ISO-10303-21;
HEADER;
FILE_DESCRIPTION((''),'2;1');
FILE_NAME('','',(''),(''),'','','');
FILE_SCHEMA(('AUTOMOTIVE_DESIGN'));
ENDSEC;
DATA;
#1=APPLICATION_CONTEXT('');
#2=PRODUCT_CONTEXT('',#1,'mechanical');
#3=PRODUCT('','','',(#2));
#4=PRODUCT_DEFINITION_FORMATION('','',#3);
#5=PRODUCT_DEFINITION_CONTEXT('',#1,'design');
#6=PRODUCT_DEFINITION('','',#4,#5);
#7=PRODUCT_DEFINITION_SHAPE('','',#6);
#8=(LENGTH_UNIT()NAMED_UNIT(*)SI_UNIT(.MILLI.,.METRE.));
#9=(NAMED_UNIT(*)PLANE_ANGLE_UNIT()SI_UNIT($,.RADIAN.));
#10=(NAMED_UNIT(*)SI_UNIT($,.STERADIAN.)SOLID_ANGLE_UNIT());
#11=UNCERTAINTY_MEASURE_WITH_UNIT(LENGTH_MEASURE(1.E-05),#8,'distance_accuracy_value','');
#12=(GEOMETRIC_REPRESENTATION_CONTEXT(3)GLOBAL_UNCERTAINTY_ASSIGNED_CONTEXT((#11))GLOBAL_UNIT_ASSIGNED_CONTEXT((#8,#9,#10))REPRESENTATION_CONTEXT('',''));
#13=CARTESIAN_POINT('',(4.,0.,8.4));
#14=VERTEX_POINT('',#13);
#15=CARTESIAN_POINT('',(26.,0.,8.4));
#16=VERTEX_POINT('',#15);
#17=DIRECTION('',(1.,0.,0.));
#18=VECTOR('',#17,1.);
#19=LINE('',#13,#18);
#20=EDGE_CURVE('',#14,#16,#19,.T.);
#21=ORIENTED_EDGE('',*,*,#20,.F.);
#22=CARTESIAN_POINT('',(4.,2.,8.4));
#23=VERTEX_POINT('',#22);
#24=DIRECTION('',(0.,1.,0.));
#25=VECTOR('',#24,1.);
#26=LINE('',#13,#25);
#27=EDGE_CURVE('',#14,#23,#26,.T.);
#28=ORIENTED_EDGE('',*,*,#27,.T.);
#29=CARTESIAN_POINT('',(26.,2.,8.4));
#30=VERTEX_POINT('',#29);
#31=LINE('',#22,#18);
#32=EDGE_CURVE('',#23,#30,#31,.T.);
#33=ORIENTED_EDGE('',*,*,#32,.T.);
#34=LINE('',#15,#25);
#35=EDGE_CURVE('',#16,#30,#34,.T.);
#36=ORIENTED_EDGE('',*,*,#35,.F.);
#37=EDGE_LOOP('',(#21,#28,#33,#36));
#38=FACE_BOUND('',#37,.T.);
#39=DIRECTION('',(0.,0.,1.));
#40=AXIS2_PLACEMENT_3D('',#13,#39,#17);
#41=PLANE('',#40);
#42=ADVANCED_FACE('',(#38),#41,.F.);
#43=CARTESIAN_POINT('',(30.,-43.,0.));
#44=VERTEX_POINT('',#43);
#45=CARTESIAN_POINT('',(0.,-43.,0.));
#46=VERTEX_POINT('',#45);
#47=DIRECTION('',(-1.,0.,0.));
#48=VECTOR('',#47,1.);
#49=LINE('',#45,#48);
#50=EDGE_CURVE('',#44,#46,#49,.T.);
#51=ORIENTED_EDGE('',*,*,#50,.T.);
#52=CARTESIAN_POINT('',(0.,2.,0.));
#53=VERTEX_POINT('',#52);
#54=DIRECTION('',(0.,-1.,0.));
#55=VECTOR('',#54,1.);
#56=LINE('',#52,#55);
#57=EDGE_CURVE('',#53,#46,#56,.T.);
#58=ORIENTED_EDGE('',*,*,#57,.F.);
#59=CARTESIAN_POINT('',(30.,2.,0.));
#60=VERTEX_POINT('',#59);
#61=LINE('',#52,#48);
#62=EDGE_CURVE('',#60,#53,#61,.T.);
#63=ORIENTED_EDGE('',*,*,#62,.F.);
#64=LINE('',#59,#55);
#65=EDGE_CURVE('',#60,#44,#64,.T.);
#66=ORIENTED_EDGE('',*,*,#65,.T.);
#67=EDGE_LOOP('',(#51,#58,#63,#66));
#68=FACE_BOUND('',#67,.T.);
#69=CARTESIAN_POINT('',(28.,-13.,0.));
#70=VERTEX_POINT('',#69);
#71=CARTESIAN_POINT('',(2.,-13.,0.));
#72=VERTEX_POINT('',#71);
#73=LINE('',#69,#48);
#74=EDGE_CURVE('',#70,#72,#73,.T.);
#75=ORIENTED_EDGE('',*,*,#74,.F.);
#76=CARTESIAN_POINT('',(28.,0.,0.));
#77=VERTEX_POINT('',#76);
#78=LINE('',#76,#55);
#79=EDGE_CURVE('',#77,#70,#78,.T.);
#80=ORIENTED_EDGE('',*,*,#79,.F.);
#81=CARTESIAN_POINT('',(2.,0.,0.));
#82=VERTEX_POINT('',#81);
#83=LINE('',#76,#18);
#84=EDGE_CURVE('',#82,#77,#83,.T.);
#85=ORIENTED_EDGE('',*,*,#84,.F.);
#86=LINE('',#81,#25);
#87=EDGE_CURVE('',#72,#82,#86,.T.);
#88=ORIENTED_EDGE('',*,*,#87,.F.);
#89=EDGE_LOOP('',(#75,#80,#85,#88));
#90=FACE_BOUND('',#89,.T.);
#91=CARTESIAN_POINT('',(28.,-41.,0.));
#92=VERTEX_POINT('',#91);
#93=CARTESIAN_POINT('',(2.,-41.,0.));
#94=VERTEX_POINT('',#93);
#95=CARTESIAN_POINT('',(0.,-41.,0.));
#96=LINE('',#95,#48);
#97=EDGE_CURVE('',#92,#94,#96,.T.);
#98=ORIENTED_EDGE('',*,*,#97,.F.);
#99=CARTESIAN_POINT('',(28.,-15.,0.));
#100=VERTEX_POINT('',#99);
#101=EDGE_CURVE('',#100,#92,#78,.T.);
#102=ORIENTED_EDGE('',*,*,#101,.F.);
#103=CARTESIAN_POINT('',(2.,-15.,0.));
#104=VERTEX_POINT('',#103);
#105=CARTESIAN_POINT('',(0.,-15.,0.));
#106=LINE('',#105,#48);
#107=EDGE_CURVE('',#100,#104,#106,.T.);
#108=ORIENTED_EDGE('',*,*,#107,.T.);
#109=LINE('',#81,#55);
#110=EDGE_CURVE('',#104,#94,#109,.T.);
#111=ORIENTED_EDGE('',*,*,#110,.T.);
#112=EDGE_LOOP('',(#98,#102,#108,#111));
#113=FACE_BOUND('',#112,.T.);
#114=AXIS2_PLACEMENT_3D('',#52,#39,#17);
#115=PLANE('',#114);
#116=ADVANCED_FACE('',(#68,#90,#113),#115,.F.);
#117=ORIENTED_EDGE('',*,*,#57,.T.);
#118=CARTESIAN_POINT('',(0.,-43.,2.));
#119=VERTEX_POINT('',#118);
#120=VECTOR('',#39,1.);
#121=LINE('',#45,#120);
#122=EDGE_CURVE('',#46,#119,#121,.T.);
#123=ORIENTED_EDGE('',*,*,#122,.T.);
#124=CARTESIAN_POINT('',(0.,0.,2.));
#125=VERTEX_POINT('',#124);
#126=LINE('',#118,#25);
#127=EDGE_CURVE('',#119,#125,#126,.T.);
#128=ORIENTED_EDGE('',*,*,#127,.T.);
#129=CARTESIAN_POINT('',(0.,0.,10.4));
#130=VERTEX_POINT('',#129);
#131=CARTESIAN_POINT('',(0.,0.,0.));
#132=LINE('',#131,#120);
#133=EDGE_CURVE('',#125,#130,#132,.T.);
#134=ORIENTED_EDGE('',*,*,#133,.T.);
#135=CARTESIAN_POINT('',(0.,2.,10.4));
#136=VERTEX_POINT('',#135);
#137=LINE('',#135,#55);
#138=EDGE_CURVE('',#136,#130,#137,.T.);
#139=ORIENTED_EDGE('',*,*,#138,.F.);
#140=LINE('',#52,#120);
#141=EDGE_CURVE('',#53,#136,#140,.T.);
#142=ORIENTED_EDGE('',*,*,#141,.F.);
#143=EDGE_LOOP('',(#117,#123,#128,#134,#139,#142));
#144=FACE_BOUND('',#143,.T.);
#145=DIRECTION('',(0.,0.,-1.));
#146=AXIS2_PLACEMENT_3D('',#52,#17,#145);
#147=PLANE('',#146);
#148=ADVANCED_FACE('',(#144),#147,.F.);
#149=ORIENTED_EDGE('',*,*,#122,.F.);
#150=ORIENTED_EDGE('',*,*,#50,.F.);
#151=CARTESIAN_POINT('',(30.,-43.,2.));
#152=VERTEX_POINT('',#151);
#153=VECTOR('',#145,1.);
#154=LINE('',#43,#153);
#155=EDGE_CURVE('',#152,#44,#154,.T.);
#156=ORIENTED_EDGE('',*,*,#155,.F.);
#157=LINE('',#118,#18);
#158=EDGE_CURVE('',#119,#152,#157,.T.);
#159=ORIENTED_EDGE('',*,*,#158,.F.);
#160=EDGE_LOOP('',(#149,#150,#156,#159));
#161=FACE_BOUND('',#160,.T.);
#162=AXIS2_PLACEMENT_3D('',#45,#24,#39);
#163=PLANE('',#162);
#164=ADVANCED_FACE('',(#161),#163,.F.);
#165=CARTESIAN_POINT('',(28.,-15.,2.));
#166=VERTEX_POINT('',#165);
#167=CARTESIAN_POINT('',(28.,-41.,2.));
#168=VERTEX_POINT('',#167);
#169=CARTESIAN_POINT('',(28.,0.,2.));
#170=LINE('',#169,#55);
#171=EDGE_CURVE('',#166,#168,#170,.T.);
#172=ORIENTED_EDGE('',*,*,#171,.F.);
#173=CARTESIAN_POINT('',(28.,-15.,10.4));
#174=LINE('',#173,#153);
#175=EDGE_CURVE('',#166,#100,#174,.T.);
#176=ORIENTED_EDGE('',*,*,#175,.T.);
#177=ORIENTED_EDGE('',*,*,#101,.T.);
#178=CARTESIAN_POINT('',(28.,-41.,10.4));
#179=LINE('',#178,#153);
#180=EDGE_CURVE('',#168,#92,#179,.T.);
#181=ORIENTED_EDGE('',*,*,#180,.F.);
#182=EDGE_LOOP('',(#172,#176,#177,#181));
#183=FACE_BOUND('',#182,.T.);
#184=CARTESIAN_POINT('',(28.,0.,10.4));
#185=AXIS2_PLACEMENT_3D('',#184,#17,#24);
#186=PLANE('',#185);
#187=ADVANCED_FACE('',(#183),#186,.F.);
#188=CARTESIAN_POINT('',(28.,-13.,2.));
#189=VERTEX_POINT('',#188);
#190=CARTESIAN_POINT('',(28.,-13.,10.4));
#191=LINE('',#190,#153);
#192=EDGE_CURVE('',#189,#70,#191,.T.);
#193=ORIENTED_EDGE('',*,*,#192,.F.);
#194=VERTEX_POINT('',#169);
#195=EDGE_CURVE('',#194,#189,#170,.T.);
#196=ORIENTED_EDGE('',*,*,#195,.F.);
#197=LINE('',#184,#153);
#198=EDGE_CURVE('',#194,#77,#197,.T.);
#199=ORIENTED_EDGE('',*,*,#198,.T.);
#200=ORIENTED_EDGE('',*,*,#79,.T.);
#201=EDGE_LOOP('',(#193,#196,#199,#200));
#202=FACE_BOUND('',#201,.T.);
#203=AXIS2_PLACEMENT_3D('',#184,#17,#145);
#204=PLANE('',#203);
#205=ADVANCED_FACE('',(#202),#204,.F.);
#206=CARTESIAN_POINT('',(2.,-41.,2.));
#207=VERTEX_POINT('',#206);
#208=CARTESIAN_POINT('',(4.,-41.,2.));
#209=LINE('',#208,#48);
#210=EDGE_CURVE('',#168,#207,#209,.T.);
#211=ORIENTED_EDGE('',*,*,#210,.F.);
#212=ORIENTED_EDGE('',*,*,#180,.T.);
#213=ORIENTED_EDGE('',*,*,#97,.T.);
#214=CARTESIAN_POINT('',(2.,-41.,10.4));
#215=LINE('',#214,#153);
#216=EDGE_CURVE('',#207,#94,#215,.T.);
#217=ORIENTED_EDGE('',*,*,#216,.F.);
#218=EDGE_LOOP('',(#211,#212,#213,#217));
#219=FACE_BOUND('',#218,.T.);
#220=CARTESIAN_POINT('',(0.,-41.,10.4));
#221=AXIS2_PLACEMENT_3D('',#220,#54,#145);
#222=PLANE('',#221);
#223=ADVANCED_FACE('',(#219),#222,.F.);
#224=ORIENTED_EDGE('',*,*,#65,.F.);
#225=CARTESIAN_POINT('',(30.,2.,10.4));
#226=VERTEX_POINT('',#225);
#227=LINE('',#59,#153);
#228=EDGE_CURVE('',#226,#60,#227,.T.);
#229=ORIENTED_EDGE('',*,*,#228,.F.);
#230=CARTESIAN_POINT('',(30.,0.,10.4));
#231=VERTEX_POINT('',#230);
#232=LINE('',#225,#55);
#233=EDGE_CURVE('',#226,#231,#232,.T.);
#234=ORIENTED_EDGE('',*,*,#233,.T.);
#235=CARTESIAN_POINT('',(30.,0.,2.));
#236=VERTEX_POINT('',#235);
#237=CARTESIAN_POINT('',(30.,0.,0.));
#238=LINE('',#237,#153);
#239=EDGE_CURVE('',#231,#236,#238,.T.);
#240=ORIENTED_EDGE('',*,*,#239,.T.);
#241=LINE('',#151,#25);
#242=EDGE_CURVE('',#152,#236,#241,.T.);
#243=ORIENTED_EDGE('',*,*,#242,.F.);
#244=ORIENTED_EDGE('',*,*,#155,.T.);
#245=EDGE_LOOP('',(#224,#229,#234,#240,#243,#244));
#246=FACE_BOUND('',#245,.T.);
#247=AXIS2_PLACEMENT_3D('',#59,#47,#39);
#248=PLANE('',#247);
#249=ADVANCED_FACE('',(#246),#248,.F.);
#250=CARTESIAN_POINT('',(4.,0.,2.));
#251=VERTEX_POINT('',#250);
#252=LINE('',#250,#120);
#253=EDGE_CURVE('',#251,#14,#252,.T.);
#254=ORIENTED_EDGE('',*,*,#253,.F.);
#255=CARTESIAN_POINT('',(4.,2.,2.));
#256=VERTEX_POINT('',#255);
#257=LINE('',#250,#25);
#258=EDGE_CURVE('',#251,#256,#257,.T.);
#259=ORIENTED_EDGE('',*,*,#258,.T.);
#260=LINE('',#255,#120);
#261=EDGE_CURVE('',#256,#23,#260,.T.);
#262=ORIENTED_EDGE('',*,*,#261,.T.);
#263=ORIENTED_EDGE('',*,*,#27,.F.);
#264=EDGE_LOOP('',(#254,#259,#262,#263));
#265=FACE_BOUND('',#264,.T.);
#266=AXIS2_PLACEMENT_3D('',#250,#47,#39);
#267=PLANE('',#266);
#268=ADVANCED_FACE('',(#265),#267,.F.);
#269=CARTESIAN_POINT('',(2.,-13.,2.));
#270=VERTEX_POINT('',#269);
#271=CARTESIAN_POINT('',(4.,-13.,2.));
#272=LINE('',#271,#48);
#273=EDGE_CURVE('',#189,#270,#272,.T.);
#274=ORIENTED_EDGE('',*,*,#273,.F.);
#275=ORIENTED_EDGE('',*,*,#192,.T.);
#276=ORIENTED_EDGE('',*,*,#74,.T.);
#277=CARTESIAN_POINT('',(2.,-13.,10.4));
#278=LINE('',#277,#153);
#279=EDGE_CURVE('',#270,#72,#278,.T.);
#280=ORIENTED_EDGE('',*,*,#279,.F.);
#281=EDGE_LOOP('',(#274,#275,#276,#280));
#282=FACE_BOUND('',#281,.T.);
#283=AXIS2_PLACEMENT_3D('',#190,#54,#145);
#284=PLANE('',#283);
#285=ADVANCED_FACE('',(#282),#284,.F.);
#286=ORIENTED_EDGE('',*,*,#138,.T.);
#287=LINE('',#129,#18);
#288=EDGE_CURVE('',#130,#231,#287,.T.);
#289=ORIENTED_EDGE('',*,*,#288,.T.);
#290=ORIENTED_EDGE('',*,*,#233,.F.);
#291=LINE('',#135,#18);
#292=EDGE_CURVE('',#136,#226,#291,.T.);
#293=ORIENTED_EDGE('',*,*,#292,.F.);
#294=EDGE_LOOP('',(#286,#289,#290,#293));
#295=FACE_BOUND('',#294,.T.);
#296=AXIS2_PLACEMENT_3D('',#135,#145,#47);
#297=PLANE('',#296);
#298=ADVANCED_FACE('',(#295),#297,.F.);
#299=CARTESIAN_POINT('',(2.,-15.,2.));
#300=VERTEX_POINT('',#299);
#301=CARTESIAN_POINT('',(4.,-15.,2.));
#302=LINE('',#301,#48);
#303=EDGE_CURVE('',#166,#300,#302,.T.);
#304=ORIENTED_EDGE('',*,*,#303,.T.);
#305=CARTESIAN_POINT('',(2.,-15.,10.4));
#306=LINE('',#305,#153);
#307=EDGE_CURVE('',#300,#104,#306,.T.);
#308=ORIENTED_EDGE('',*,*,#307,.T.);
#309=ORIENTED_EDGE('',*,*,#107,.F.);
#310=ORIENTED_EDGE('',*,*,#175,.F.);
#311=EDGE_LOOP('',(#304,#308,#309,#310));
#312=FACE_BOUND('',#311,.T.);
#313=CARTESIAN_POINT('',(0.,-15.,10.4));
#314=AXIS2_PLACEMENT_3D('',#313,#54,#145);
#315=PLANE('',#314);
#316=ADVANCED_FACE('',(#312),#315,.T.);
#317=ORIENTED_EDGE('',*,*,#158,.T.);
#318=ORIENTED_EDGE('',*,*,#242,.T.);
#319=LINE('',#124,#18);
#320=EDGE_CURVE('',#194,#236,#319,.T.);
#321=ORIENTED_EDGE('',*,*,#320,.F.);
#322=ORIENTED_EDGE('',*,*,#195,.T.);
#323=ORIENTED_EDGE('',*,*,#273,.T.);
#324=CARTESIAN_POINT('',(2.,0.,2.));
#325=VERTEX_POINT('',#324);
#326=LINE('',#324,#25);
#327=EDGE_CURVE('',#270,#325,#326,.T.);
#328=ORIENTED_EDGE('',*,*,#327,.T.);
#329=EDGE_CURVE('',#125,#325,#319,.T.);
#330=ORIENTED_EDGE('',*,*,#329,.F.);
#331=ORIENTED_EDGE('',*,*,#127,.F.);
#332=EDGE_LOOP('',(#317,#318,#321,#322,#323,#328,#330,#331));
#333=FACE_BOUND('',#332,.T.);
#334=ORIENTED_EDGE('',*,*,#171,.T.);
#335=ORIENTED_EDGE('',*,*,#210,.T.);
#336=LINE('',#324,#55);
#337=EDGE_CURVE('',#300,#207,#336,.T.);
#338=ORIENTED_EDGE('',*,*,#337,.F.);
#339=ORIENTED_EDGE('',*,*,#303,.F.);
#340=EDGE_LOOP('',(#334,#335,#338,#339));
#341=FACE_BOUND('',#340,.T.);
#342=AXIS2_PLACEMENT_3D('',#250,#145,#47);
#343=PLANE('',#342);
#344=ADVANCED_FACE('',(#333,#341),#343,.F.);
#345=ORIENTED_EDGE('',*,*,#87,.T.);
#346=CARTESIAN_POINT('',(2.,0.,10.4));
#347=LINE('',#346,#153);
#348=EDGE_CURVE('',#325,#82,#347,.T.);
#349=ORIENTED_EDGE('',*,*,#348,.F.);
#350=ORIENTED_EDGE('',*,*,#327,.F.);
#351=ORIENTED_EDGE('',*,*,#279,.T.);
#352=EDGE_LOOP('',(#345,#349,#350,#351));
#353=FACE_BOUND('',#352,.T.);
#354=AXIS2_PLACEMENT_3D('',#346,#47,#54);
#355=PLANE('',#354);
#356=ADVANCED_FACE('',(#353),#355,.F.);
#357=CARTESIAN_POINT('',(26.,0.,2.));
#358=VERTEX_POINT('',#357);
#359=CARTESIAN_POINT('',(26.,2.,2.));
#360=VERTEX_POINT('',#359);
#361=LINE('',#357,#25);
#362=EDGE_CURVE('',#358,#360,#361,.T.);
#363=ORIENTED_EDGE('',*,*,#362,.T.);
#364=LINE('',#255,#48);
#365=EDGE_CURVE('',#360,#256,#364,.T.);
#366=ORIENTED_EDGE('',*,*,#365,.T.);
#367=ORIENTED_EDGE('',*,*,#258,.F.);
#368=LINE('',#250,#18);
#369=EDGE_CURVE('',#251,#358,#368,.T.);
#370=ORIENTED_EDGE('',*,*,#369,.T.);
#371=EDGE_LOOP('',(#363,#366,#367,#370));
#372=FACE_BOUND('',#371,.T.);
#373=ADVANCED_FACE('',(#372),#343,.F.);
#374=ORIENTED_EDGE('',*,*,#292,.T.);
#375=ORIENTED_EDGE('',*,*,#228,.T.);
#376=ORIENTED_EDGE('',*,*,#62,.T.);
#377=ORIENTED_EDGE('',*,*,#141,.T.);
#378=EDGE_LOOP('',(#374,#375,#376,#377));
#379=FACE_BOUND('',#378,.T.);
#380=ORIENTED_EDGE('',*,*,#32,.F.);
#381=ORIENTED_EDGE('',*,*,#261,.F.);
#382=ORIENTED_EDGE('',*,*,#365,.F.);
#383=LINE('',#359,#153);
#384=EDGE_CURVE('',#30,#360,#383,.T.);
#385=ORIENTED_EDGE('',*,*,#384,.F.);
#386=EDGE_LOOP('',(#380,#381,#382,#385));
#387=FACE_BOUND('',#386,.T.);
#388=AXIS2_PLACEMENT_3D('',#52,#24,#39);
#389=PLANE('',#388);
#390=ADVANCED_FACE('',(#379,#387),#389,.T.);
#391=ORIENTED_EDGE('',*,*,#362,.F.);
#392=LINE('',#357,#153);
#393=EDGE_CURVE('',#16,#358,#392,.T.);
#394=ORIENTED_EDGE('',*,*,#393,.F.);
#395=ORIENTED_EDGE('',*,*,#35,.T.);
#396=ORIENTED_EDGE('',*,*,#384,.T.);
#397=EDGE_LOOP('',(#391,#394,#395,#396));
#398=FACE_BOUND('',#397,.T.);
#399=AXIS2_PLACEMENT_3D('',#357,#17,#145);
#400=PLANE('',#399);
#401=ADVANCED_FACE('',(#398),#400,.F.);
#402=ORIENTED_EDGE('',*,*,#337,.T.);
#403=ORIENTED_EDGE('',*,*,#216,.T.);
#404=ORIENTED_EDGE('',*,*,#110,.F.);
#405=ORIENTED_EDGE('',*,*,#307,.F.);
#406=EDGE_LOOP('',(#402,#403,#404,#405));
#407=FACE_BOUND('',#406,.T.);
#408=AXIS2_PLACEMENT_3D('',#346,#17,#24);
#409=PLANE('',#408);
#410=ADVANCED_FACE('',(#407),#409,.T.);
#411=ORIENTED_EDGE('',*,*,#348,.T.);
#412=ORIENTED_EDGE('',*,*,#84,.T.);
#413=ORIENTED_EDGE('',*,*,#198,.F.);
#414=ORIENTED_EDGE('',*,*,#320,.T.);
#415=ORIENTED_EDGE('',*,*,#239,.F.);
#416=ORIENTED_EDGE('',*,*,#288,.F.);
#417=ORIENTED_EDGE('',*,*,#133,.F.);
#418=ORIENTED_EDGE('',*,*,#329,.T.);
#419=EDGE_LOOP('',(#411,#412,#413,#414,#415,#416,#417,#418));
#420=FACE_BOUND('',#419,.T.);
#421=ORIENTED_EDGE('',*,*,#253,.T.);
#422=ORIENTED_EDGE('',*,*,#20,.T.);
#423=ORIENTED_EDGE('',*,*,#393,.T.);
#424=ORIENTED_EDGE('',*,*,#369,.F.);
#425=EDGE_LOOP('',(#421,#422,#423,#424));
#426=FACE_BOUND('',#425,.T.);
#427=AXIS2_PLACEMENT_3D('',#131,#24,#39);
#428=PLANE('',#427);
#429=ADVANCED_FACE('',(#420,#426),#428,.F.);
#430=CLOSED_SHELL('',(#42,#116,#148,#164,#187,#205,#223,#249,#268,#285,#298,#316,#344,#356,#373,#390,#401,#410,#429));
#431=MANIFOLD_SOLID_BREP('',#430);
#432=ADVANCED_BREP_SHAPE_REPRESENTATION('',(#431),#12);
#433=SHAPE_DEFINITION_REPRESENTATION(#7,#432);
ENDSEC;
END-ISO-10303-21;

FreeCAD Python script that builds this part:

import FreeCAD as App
import Part
import Sketcher


def add_polygon(sketch, points):
    """Adds a closed chain of lines whose ends are joined by coincident constraints."""
    first, n = sketch.GeometryCount, len(points)
    for a, b in zip(points, points[1:] + points[:1]):
        sketch.addGeometry(Part.LineSegment(App.Vector(*a, 0), App.Vector(*b, 0)), False)
    for i in range(n):
        sketch.addConstraint(Sketcher.Constraint("Coincident", first + i, 2, first + (i + 1) % n, 1))

doc = App.newDocument("Part")
body = doc.addObject("PartDesign::Body", "Body")

# Sketch on XZ plane
sketch1 = doc.addObject("Sketcher::SketchObject", "Sketch")
body.addObject(sketch1)
sketch1.AttachmentSupport = (doc.XZ_Plane, [""])
sketch1.MapMode = "FlatFace"
add_polygon(sketch1, [(0, 0), (0, 10.4), (30, 10.4), (30, 0)])  # lines 0-3
sketch1.addConstraint(Sketcher.Constraint("Vertical", 0))
sketch1.addConstraint(Sketcher.Constraint("Horizontal", 1))
sketch1.addConstraint(Sketcher.Constraint("Vertical", 2))
sketch1.addConstraint(Sketcher.Constraint("Horizontal", 3))
sketch1.addConstraint(Sketcher.Constraint("Coincident", 3, 2, -1, 1))
sketch1.addConstraint(Sketcher.Constraint("DistanceX", 1, 1, 1, 2, 30.0))
sketch1.addConstraint(Sketcher.Constraint("DistanceY", 0, 1, 0, 2, 10.4))
pad1 = doc.addObject("PartDesign::Pad", "Pad")
body.addObject(pad1)
pad1.Profile = sketch1
pad1.Length = 2
pad1.Reversed = True

# Sketch on XZ plane
sketch2 = doc.addObject("Sketcher::SketchObject", "Sketch001")
body.addObject(sketch2)
sketch2.AttachmentSupport = (doc.XZ_Plane, [""])
sketch2.MapMode = "FlatFace"
sketch2.AttachmentOffset = App.Placement(App.Vector(0, 0, -2), App.Rotation())
add_polygon(sketch2, [(4, 2), (4, 8.4), (26, 8.4), (26, 2)])  # lines 0-3
sketch2.addConstraint(Sketcher.Constraint("Vertical", 0))
sketch2.addConstraint(Sketcher.Constraint("Horizontal", 1))
sketch2.addConstraint(Sketcher.Constraint("Vertical", 2))
sketch2.addConstraint(Sketcher.Constraint("Horizontal", 3))
sketch2.addConstraint(Sketcher.Constraint("DistanceX", 1, 1, 1, 2, 22.0))
sketch2.addConstraint(Sketcher.Constraint("DistanceY", 0, 1, 0, 2, 6.4))
sketch2.addConstraint(Sketcher.Constraint("DistanceX", -1, 1, 0, 2, 4.0))
sketch2.addConstraint(Sketcher.Constraint("DistanceY", -1, 1, 2, 2, 2.0))
pocket1 = doc.addObject("PartDesign::Pocket", "Pocket")
body.addObject(pocket1)
pocket1.Profile = sketch2
pocket1.Type = "ThroughAll"
pocket1.Reversed = True

# Sketch on XZ plane
sketch3 = doc.addObject("Sketcher::SketchObject", "Sketch002")
body.addObject(sketch3)
sketch3.AttachmentSupport = (doc.XZ_Plane, [""])
sketch3.MapMode = "FlatFace"
sketch3.AttachmentOffset = App.Placement(App.Vector(0, 0, -2), App.Rotation())
add_polygon(sketch3, [(0, 0), (0, 2), (30, 2), (30, 0)])  # lines 0-3
sketch3.addConstraint(Sketcher.Constraint("Vertical", 0))
sketch3.addConstraint(Sketcher.Constraint("Horizontal", 1))
sketch3.addConstraint(Sketcher.Constraint("Vertical", 2))
sketch3.addConstraint(Sketcher.Constraint("Horizontal", 3))
sketch3.addConstraint(Sketcher.Constraint("Coincident", 3, 2, -1, 1))
sketch3.addConstraint(Sketcher.Constraint("DistanceX", 1, 1, 1, 2, 30.0))
sketch3.addConstraint(Sketcher.Constraint("DistanceY", 0, 1, 0, 2, 2.0))
pad2 = doc.addObject("PartDesign::Pad", "Pad001")
body.addObject(pad2)
pad2.Profile = sketch3
pad2.Length = 45

# Sketch on XY plane
sketch4 = doc.addObject("Sketcher::SketchObject", "Sketch003")
body.addObject(sketch4)
sketch4.AttachmentSupport = (doc.XY_Plane, [""])
sketch4.MapMode = "FlatFace"
add_polygon(sketch4, [(28, -15), (28, -41), (2, -41), (2, -15)])  # lines 0-3
sketch4.addConstraint(Sketcher.Constraint("Vertical", 0))
sketch4.addConstraint(Sketcher.Constraint("Horizontal", 1))
sketch4.addConstraint(Sketcher.Constraint("Vertical", 2))
sketch4.addConstraint(Sketcher.Constraint("Horizontal", 3))
sketch4.addConstraint(Sketcher.Constraint("Equal", 3, 0))
sketch4.addConstraint(Sketcher.Constraint("DistanceX", 1, 2, 1, 1, 26.0))
sketch4.addConstraint(Sketcher.Constraint("DistanceX", -1, 1, 0, 2, 28.0))
sketch4.addConstraint(Sketcher.Constraint("DistanceY", 0, 2, -1, 1, 41.0))
pocket2 = doc.addObject("PartDesign::Pocket", "Pocket001")
body.addObject(pocket2)
pocket2.Profile = sketch4
pocket2.Type = "ThroughAll"
pocket2.Reversed = True

# Sketch on XY plane
sketch5 = doc.addObject("Sketcher::SketchObject", "Sketch004")
body.addObject(sketch5)
sketch5.AttachmentSupport = (doc.XY_Plane, [""])
sketch5.MapMode = "FlatFace"
add_polygon(sketch5, [(28, 0), (28, -13), (2, -13), (2, 0)])  # lines 0-3
sketch5.addConstraint(Sketcher.Constraint("Vertical", 0))
sketch5.addConstraint(Sketcher.Constraint("Horizontal", 1))
sketch5.addConstraint(Sketcher.Constraint("Vertical", 2))
sketch5.addConstraint(Sketcher.Constraint("Horizontal", 3))
sketch5.addConstraint(Sketcher.Constraint("PointOnObject", 2, 2, -1))
sketch5.addConstraint(Sketcher.Constraint("DistanceX", 1, 2, 1, 1, 26.0))
sketch5.addConstraint(Sketcher.Constraint("DistanceY", 0, 2, 0, 1, 13.0))
sketch5.addConstraint(Sketcher.Constraint("DistanceX", -1, 1, 0, 2, 28.0))
pocket3 = doc.addObject("PartDesign::Pocket", "Pocket002")
body.addObject(pocket3)
pocket3.Profile = sketch5
pocket3.Type = "ThroughAll"
pocket3.Reversed = True

doc.recompute()
